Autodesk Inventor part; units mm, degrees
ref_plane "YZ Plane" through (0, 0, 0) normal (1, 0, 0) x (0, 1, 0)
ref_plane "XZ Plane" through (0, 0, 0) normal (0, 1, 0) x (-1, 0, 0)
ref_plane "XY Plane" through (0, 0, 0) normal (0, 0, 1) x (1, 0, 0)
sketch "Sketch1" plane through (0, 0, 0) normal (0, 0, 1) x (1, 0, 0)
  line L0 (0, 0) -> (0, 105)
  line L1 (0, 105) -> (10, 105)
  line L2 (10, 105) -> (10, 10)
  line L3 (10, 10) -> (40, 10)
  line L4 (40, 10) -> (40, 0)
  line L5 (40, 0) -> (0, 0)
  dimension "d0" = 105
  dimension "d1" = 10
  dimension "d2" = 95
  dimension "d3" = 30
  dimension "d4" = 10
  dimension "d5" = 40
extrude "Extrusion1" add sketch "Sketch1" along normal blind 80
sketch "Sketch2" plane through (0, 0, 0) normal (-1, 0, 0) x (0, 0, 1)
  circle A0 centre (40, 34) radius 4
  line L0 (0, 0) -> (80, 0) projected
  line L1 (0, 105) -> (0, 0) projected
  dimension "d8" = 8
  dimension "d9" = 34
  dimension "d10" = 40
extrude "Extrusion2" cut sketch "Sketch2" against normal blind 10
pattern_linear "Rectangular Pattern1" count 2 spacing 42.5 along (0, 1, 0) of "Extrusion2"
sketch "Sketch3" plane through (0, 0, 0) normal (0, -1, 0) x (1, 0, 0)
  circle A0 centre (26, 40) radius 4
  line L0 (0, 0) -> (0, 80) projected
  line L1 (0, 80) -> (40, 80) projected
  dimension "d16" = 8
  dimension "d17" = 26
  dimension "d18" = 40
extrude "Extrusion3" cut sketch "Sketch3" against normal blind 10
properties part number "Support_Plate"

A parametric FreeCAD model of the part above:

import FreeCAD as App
import Part
import Sketcher
from FreeCAD import Vector

doc = App.newDocument("Part")
params = doc.addObject("Spreadsheet::Sheet", "Params")
for row, (alias, value) in enumerate([
    ("sketch1_width", "40 mm"),
    ("sketch1_width2", "30 mm"),
    ("sketch1_height", "105 mm"),
    ("pad1_length", "80 mm"),
    ("sketch2_diameter", "8 mm"),
    ("pocket1_length", "10 mm"),
    ("linearpattern_pitch", "42.5 mm"),
    ("sketch3_diameter", "8 mm"),
    ("pocket2_length", "10 mm"),
], start=1):
    params.set(f"A{row}", alias)
    params.set(f"B{row}", "=" + value)
    params.setAlias(f"B{row}", alias)

body = doc.addObject("PartDesign::Body", "Body")

# Sketch on XY plane
sketch1 = body.newObject("Sketcher::SketchObject", "Sketch")
sketch1.AttachmentSupport = (doc.getObject("XY_Plane"), [""])
sketch1.MapMode = "FlatFace"
sketch1.addGeometry([
    Part.LineSegment(Vector(0, 105, 0), Vector(0, 0, 0)),  # 0
    Part.LineSegment(Vector(0, 0, 0), Vector(40, 0, 0)),  # 1
    Part.LineSegment(Vector(40, 0, 0), Vector(40, 10, 0)),  # 2
    Part.LineSegment(Vector(40, 10, 0), Vector(10, 10, 0)),  # 3
    Part.LineSegment(Vector(10, 10, 0), Vector(10, 105, 0)),  # 4
    Part.LineSegment(Vector(10, 105, 0), Vector(0, 105, 0)),  # 5
], False)
sketch1.addConstraint([
    Sketcher.Constraint("Coincident", 0, 2, 1, 1),
    Sketcher.Constraint("Coincident", 1, 2, 2, 1),
    Sketcher.Constraint("Coincident", 2, 2, 3, 1),
    Sketcher.Constraint("Coincident", 3, 2, 4, 1),
    Sketcher.Constraint("Coincident", 4, 2, 5, 1),
    Sketcher.Constraint("Coincident", 5, 2, 0, 1),
    Sketcher.Constraint("Vertical", 0),
    Sketcher.Constraint("Horizontal", 1),
    Sketcher.Constraint("Vertical", 2),
    Sketcher.Constraint("Horizontal", 3),
    Sketcher.Constraint("Vertical", 4),
    Sketcher.Constraint("Horizontal", 5),
    Sketcher.Constraint("Coincident", 0, 2, -1, 1),
    Sketcher.Constraint("Equal", 5, 2),
    Sketcher.Constraint("DistanceX", 1, 1, 1, 2, 40.0),
    Sketcher.Constraint("DistanceX", 3, 2, 3, 1, 30.0),
    Sketcher.Constraint("DistanceY", 0, 2, 0, 1, 105.0),
])
sketch1.setExpression("Constraints[14]", "Params.sketch1_width")
sketch1.setExpression("Constraints[15]", "Params.sketch1_width2")
sketch1.setExpression("Constraints[16]", "Params.sketch1_height")
pad1 = body.newObject("PartDesign::Pad", "Pad")
pad1.Profile = sketch1
pad1.setExpression("Length", "Params.pad1_length")

# Sketch on YZ plane
sketch2 = body.newObject("Sketcher::SketchObject", "Sketch001")
sketch2.AttachmentSupport = (doc.getObject("YZ_Plane"), [""])
sketch2.MapMode = "FlatFace"
sketch2.addGeometry(Part.Circle(Vector(34, 40, 0), Vector(0, 0, 1), 4), False)
sketch2.addConstraint([
    Sketcher.Constraint("Diameter", 0, 8.0),
    Sketcher.Constraint("DistanceX", -1, 1, 0, 3, 34.0),
    Sketcher.Constraint("DistanceY", -1, 1, 0, 3, 40.0),
])
sketch2.setExpression("Constraints[0]", "Params.sketch2_diameter")
pocket1 = body.newObject("PartDesign::Pocket", "Pocket")
pocket1.Profile = sketch2
pocket1.setExpression("Length", "Params.pocket1_length")
pocket1.Reversed = True
doc.recompute()

linearpattern = body.newObject("PartDesign::LinearPattern", "LinearPattern")
linearpattern.Originals = [pocket1]
linearpattern.Direction = (doc.getObject("Y_Axis"), [""])
linearpattern.Mode = "offset"
linearpattern.setExpression("Offset", "Params.linearpattern_pitch")
linearpattern.Occurrences = 2
body.Tip = linearpattern

# Sketch on XZ plane
sketch3 = body.newObject("Sketcher::SketchObject", "Sketch002")
sketch3.AttachmentSupport = (doc.getObject("XZ_Plane"), [""])
sketch3.MapMode = "FlatFace"
sketch3.addGeometry(Part.Circle(Vector(26, 40, 0), Vector(0, 0, 1), 4), False)
sketch3.addConstraint([
    Sketcher.Constraint("Diameter", 0, 8.0),
    Sketcher.Constraint("DistanceX", -1, 1, 0, 3, 26.0),
    Sketcher.Constraint("DistanceY", -1, 1, 0, 3, 40.0),
])
sketch3.setExpression("Constraints[0]", "Params.sketch3_diameter")
pocket2 = body.newObject("PartDesign::Pocket", "Pocket001")
pocket2.Profile = sketch3
pocket2.setExpression("Length", "Params.pocket2_length")

doc.recompute()
